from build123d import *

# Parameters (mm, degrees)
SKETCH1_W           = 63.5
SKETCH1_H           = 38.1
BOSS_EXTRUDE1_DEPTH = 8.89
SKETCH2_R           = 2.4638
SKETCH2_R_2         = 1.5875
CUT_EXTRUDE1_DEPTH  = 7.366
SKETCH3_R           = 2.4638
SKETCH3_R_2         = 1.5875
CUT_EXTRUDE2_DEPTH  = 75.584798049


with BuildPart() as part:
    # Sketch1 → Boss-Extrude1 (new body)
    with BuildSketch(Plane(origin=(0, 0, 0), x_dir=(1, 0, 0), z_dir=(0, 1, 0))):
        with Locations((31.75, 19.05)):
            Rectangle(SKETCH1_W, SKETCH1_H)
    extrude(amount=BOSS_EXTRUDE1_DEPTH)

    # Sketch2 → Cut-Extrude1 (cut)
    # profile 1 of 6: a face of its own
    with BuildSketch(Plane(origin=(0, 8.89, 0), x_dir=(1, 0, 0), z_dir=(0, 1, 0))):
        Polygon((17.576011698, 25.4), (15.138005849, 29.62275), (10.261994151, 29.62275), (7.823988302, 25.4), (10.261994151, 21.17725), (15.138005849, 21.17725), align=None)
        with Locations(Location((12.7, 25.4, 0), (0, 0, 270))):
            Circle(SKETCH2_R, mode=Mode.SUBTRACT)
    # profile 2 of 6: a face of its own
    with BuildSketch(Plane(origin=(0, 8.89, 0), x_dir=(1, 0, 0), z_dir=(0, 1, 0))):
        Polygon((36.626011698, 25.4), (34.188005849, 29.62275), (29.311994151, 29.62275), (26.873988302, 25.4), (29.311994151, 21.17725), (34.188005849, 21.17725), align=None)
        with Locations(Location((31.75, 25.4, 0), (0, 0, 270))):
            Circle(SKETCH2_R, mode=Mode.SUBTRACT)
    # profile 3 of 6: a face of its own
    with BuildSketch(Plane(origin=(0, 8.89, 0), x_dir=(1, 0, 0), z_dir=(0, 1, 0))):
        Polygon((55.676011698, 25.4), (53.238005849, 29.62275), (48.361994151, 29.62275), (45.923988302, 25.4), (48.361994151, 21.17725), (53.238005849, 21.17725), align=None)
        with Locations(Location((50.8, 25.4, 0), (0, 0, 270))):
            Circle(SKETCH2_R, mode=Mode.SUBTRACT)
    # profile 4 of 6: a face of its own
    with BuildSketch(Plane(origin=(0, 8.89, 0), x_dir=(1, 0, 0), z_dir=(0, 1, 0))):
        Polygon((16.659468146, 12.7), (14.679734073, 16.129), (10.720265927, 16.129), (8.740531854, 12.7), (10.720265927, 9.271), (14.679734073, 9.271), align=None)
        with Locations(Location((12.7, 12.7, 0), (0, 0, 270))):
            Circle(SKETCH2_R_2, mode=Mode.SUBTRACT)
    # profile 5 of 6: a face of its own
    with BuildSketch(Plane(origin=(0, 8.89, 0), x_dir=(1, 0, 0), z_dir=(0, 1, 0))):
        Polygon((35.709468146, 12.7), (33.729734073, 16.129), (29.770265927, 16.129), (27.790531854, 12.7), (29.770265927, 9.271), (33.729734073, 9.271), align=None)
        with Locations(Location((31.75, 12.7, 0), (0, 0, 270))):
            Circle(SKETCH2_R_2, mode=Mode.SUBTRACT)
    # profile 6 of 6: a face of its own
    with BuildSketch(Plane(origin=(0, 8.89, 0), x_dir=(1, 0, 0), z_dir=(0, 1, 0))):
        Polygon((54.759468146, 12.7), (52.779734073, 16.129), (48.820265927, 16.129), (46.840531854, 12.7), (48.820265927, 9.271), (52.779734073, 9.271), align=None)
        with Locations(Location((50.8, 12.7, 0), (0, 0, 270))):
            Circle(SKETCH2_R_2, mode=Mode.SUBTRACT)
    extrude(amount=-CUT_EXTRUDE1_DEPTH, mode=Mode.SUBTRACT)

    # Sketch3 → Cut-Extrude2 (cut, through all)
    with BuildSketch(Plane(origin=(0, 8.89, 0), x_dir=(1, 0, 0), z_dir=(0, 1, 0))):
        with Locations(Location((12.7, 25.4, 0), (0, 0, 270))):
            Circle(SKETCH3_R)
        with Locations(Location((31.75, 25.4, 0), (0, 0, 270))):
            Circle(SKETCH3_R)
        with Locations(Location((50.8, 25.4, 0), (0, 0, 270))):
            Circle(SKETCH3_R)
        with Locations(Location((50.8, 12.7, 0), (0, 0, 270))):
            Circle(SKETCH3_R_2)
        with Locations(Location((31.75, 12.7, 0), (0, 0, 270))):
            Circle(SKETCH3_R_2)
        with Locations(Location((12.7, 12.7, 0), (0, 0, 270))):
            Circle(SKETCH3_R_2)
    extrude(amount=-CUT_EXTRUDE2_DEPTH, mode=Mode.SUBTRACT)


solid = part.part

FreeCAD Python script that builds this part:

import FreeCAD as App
import Part
import Sketcher

V = App.Vector
Q = App.Units.Quantity

doc = App.newDocument("Part")
body = doc.addObject("PartDesign::Body", "Body")

sketch1 = body.newObject("Sketcher::SketchObject", "Sketch")
sketch1.AttachmentSupport = (doc.getObject("XZ_Plane"), [""])
sketch1.MapMode = "FlatFace"
sketch1.addGeometry(Part.LineSegment(V(0, -38, 0), V(0, 0, 0)), False)
sketch1.addGeometry(Part.LineSegment(V(0, 0, 0), V(64, 0, 0)), False)
sketch1.addGeometry(Part.LineSegment(V(64, 0, 0), V(64, -38, 0)), False)
sketch1.addGeometry(Part.LineSegment(V(64, -38, 0), V(0, -38, 0)), False)
sketch1.addConstraint(Sketcher.Constraint("Coincident", 0, 2, 1, 1))
sketch1.addConstraint(Sketcher.Constraint("Coincident", 1, 2, 2, 1))
sketch1.addConstraint(Sketcher.Constraint("Coincident", 2, 2, 3, 1))
sketch1.addConstraint(Sketcher.Constraint("Coincident", 3, 2, 0, 1))
sketch1.addConstraint(Sketcher.Constraint("Vertical", 0))
sketch1.addConstraint(Sketcher.Constraint("Horizontal", 1))
sketch1.addConstraint(Sketcher.Constraint("Vertical", 2))
sketch1.addConstraint(Sketcher.Constraint("Horizontal", 3))
sketch1.addConstraint(Sketcher.Constraint("Coincident", 0, 2, -1, 1))
sketch1.addConstraint(Sketcher.Constraint("DistanceX", 1, 1, 1, 2, Q("2.5 in")))
sketch1.addConstraint(Sketcher.Constraint("DistanceY", 0, 1, 0, 2, Q("1.5 in")))
pad1 = body.newObject("PartDesign::Pad", "Pad")
pad1.Profile = sketch1
pad1.Length = Q("0.35 in")
pad1.Reversed = True

sketch2 = body.newObject("Sketcher::SketchObject", "Sketch001")
sketch2.AttachmentSupport = (doc.getObject("XZ_Plane"), [""])
sketch2.MapMode = "FlatFace"
sketch2.AttachmentOffset = App.Placement(V(0, 0, -0.35 * 25.4), App.Rotation())
sketch2.addGeometry(Part.LineSegment(V(17.6, -25.4, 0), V(15.1, -29.6, 0)), False)
sketch2.addGeometry(Part.LineSegment(V(15.1, -29.6, 0), V(10.3, -29.6, 0)), False)
sketch2.addGeometry(Part.LineSegment(V(10.3, -29.6, 0), V(7.8, -25.4, 0)), False)
sketch2.addGeometry(Part.LineSegment(V(7.8, -25.4, 0), V(10.3, -21.2, 0)), False)
sketch2.addGeometry(Part.LineSegment(V(10.3, -21.2, 0), V(15.1, -21.2, 0)), False)
sketch2.addGeometry(Part.LineSegment(V(15.1, -21.2, 0), V(17.6, -25.4, 0)), False)
sketch2.addGeometry(Part.Circle(V(12.7, -25.4, 0), V(0, 0, 1), 2.5), False)
sketch2.addGeometry(Part.LineSegment(V(36.6, -25.4, 0), V(34.2, -29.6, 0)), False)
sketch2.addGeometry(Part.LineSegment(V(34.2, -29.6, 0), V(29.3, -29.6, 0)), False)
sketch2.addGeometry(Part.LineSegment(V(29.3, -29.6, 0), V(26.9, -25.4, 0)), False)
sketch2.addGeometry(Part.LineSegment(V(26.9, -25.4, 0), V(29.3, -21.2, 0)), False)
sketch2.addGeometry(Part.LineSegment(V(29.3, -21.2, 0), V(34.2, -21.2, 0)), False)
sketch2.addGeometry(Part.LineSegment(V(34.2, -21.2, 0), V(36.6, -25.4, 0)), False)
sketch2.addGeometry(Part.Circle(V(31.8, -25.4, 0), V(0, 0, 1), 2.5), False)
sketch2.addGeometry(Part.LineSegment(V(55.7, -25.4, 0), V(53.2, -29.6, 0)), False)
sketch2.addGeometry(Part.LineSegment(V(53.2, -29.6, 0), V(48.4, -29.6, 0)), False)
sketch2.addGeometry(Part.LineSegment(V(48.4, -29.6, 0), V(45.9, -25.4, 0)), False)
sketch2.addGeometry(Part.LineSegment(V(45.9, -25.4, 0), V(48.4, -21.2, 0)), False)
sketch2.addGeometry(Part.LineSegment(V(48.4, -21.2, 0), V(53.2, -21.2, 0)), False)
sketch2.addGeometry(Part.LineSegment(V(53.2, -21.2, 0), V(55.7, -25.4, 0)), False)
sketch2.addGeometry(Part.Circle(V(50.8, -25.4, 0), V(0, 0, 1), 2.5), False)
sketch2.addGeometry(Part.LineSegment(V(16.7, -12.7, 0), V(14.7, -16.1, 0)), False)
sketch2.addGeometry(Part.LineSegment(V(14.7, -16.1, 0), V(10.7, -16.1, 0)), False)
sketch2.addGeometry(Part.LineSegment(V(10.7, -16.1, 0), V(8.7, -12.7, 0)), False)
sketch2.addGeometry(Part.LineSegment(V(8.7, -12.7, 0), V(10.7, -9.3, 0)), False)
sketch2.addGeometry(Part.LineSegment(V(10.7, -9.3, 0), V(14.7, -9.3, 0)), False)
sketch2.addGeometry(Part.LineSegment(V(14.7, -9.3, 0), V(16.7, -12.7, 0)), False)
sketch2.addGeometry(Part.Circle(V(12.7, -12.7, 0), V(0, 0, 1), 1.6), False)
sketch2.addGeometry(Part.LineSegment(V(35.7, -12.7, 0), V(33.7, -16.1, 0)), False)
sketch2.addGeometry(Part.LineSegment(V(33.7, -16.1, 0), V(29.8, -16.1, 0)), False)
sketch2.addGeometry(Part.LineSegment(V(29.8, -16.1, 0), V(27.8, -12.7, 0)), False)
sketch2.addGeometry(Part.LineSegment(V(27.8, -12.7, 0), V(29.8, -9.3, 0)), False)
sketch2.addGeometry(Part.LineSegment(V(29.8, -9.3, 0), V(33.7, -9.3, 0)), False)
sketch2.addGeometry(Part.LineSegment(V(33.7, -9.3, 0), V(35.7, -12.7, 0)), False)
sketch2.addGeometry(Part.Circle(V(31.8, -12.7, 0), V(0, 0, 1), 1.6), False)
sketch2.addGeometry(Part.LineSegment(V(54.8, -12.7, 0), V(52.8, -16.1, 0)), False)
sketch2.addGeometry(Part.LineSegment(V(52.8, -16.1, 0), V(48.8, -16.1, 0)), False)
sketch2.addGeometry(Part.LineSegment(V(48.8, -16.1, 0), V(46.8, -12.7, 0)), False)
sketch2.addGeometry(Part.LineSegment(V(46.8, -12.7, 0), V(48.8, -9.3, 0)), False)
sketch2.addGeometry(Part.LineSegment(V(48.8, -9.3, 0), V(52.8, -9.3, 0)), False)
sketch2.addGeometry(Part.LineSegment(V(52.8, -9.3, 0), V(54.8, -12.7, 0)), False)
sketch2.addGeometry(Part.Circle(V(50.8, -12.7, 0), V(0, 0, 1), 1.6), False)
sketch2.addConstraint(Sketcher.Constraint("Coincident", 0, 2, 1, 1))
sketch2.addConstraint(Sketcher.Constraint("Coincident", 1, 2, 2, 1))
sketch2.addConstraint(Sketcher.Constraint("Coincident", 2, 2, 3, 1))
sketch2.addConstraint(Sketcher.Constraint("Coincident", 3, 2, 4, 1))
sketch2.addConstraint(Sketcher.Constraint("Coincident", 4, 2, 5, 1))
sketch2.addConstraint(Sketcher.Constraint("Coincident", 5, 2, 0, 1))
sketch2.addConstraint(Sketcher.Constraint("Coincident", 7, 2, 8, 1))
sketch2.addConstraint(Sketcher.Constraint("Coincident", 8, 2, 9, 1))
sketch2.addConstraint(Sketcher.Constraint("Coincident", 9, 2, 10, 1))
sketch2.addConstraint(Sketcher.Constraint("Coincident", 10, 2, 11, 1))
sketch2.addConstraint(Sketcher.Constraint("Coincident", 11, 2, 12, 1))
sketch2.addConstraint(Sketcher.Constraint("Coincident", 12, 2, 7, 1))
sketch2.addConstraint(Sketcher.Constraint("Coincident", 14, 2, 15, 1))
sketch2.addConstraint(Sketcher.Constraint("Coincident", 15, 2, 16, 1))
sketch2.addConstraint(Sketcher.Constraint("Coincident", 16, 2, 17, 1))
sketch2.addConstraint(Sketcher.Constraint("Coincident", 17, 2, 18, 1))
sketch2.addConstraint(Sketcher.Constraint("Coincident", 18, 2, 19, 1))
sketch2.addConstraint(Sketcher.Constraint("Coincident", 19, 2, 14, 1))
sketch2.addConstraint(Sketcher.Constraint("Coincident", 21, 2, 22, 1))
sketch2.addConstraint(Sketcher.Constraint("Coincident", 22, 2, 23, 1))
sketch2.addConstraint(Sketcher.Constraint("Coincident", 23, 2, 24, 1))
sketch2.addConstraint(Sketcher.Constraint("Coincident", 24, 2, 25, 1))
sketch2.addConstraint(Sketcher.Constraint("Coincident", 25, 2, 26, 1))
sketch2.addConstraint(Sketcher.Constraint("Coincident", 26, 2, 21, 1))
sketch2.addConstraint(Sketcher.Constraint("Coincident", 28, 2, 29, 1))
sketch2.addConstraint(Sketcher.Constraint("Coincident", 29, 2, 30, 1))
sketch2.addConstraint(Sketcher.Constraint("Coincident", 30, 2, 31, 1))
sketch2.addConstraint(Sketcher.Constraint("Coincident", 31, 2, 32, 1))
sketch2.addConstraint(Sketcher.Constraint("Coincident", 32, 2, 33, 1))
sketch2.addConstraint(Sketcher.Constraint("Coincident", 33, 2, 28, 1))
sketch2.addConstraint(Sketcher.Constraint("Coincident", 35, 2, 36, 1))
sketch2.addConstraint(Sketcher.Constraint("Coincident", 36, 2, 37, 1))
sketch2.addConstraint(Sketcher.Constraint("Coincident", 37, 2, 38, 1))
sketch2.addConstraint(Sketcher.Constraint("Coincident", 38, 2, 39, 1))
sketch2.addConstraint(Sketcher.Constraint("Coincident", 39, 2, 40, 1))
sketch2.addConstraint(Sketcher.Constraint("Coincident", 40, 2, 35, 1))
sketch2.addConstraint(Sketcher.Constraint("Horizontal", 1))
sketch2.addConstraint(Sketcher.Constraint("Horizontal", 4))
sketch2.addConstraint(Sketcher.Constraint("Horizontal", 8))
sketch2.addConstraint(Sketcher.Constraint("Horizontal", 11))
sketch2.addConstraint(Sketcher.Constraint("Horizontal", 15))
sketch2.addConstraint(Sketcher.Constraint("Horizontal", 18))
sketch2.addConstraint(Sketcher.Constraint("Horizontal", 22))
sketch2.addConstraint(Sketcher.Constraint("Horizontal", 25))
sketch2.addConstraint(Sketcher.Constraint("Horizontal", 29))
sketch2.addConstraint(Sketcher.Constraint("Horizontal", 32))
sketch2.addConstraint(Sketcher.Constraint("Horizontal", 36))
sketch2.addConstraint(Sketcher.Constraint("Horizontal", 39))
sketch2.addConstraint(Sketcher.Constraint("Equal", 6, 13))
sketch2.addConstraint(Sketcher.Constraint("Equal", 13, 20))
sketch2.addConstraint(Sketcher.Constraint("Equal", 27, 34))
sketch2.addConstraint(Sketcher.Constraint("Equal", 34, 41))
sketch2.addConstraint(Sketcher.Constraint("Parallel", 0, 3))
sketch2.addConstraint(Sketcher.Constraint("Parallel", 2, 5))
sketch2.addConstraint(Sketcher.Constraint("Parallel", 3, 7))
sketch2.addConstraint(Sketcher.Constraint("Parallel", 5, 9))
sketch2.addConstraint(Sketcher.Constraint("Parallel", 7, 10))
sketch2.addConstraint(Sketcher.Constraint("Parallel", 9, 12))
sketch2.addConstraint(Sketcher.Constraint("Parallel", 10, 14))
sketch2.addConstraint(Sketcher.Constraint("Parallel", 12, 16))
sketch2.addConstraint(Sketcher.Constraint("Parallel", 14, 17))
sketch2.addConstraint(Sketcher.Constraint("Parallel", 16, 19))
sketch2.addConstraint(Sketcher.Constraint("Parallel", 17, 21))
sketch2.addConstraint(Sketcher.Constraint("Parallel", 19, 23))
sketch2.addConstraint(Sketcher.Constraint("Parallel", 21, 24))
sketch2.addConstraint(Sketcher.Constraint("Parallel", 23, 26))
sketch2.addConstraint(Sketcher.Constraint("Parallel", 24, 28))
sketch2.addConstraint(Sketcher.Constraint("Parallel", 26, 30))
sketch2.addConstraint(Sketcher.Constraint("Parallel", 28, 31))
sketch2.addConstraint(Sketcher.Constraint("Parallel", 30, 33))
sketch2.addConstraint(Sketcher.Constraint("Parallel", 31, 35))
sketch2.addConstraint(Sketcher.Constraint("Parallel", 33, 37))
sketch2.addConstraint(Sketcher.Constraint("Parallel", 35, 38))
sketch2.addConstraint(Sketcher.Constraint("Parallel", 37, 40))
sketch2.addConstraint(Sketcher.Constraint("Horizontal", 6, 3, 13, 3))
sketch2.addConstraint(Sketcher.Constraint("Horizontal", 13, 3, 20, 3))
sketch2.addConstraint(Sketcher.Constraint("Horizontal", 27, 3, 34, 3))
sketch2.addConstraint(Sketcher.Constraint("Horizontal", 34, 3, 41, 3))
sketch2.addConstraint(Sketcher.Constraint("Horizontal", 20, 3, 2, 2))
sketch2.addConstraint(Sketcher.Constraint("Horizontal", 2, 2, 5, 2))
sketch2.addConstraint(Sketcher.Constraint("Horizontal", 1, 2, 7, 2))
sketch2.addConstraint(Sketcher.Constraint("Horizontal", 5, 2, 9, 2))
sketch2.addConstraint(Sketcher.Constraint("Horizontal", 4, 2, 10, 2))
sketch2.addConstraint(Sketcher.Constraint("Horizontal", 9, 2, 12, 2))
sketch2.addConstraint(Sketcher.Constraint("Horizontal", 8, 2, 14, 2))
sketch2.addConstraint(Sketcher.Constraint("Horizontal", 12, 2, 16, 2))
sketch2.addConstraint(Sketcher.Constraint("Horizontal", 11, 2, 17, 2))
sketch2.addConstraint(Sketcher.Constraint("Horizontal", 16, 2, 19, 2))
sketch2.addConstraint(Sketcher.Constraint("Horizontal", 41, 3, 23, 2))
sketch2.addConstraint(Sketcher.Constraint("Horizontal", 23, 2, 26, 2))
sketch2.addConstraint(Sketcher.Constraint("Horizontal", 22, 2, 28, 2))
sketch2.addConstraint(Sketcher.Constraint("Horizontal", 26, 2, 30, 2))
sketch2.addConstraint(Sketcher.Constraint("Horizontal", 25, 2, 31, 2))
sketch2.addConstraint(Sketcher.Constraint("Horizontal", 30, 2, 33, 2))
sketch2.addConstraint(Sketcher.Constraint("Horizontal", 29, 2, 35, 2))
sketch2.addConstraint(Sketcher.Constraint("Horizontal", 33, 2, 37, 2))
sketch2.addConstraint(Sketcher.Constraint("Horizontal", 32, 2, 38, 2))
sketch2.addConstraint(Sketcher.Constraint("Horizontal", 37, 2, 40, 2))
sketch2.addConstraint(Sketcher.Constraint("Vertical", 6, 3, 27, 3))
sketch2.addConstraint(Sketcher.Constraint("Vertical", 13, 3, 34, 3))
sketch2.addConstraint(Sketcher.Constraint("Vertical", 20, 3, 41, 3))
sketch2.addConstraint(Sketcher.Constraint("Vertical", 1, 2, 3, 2))
sketch2.addConstraint(Sketcher.Constraint("Vertical", 0, 2, 4, 2))
sketch2.addConstraint(Sketcher.Constraint("Vertical", 22, 2, 24, 2))
sketch2.addConstraint(Sketcher.Constraint("Equal", 4, 8))
sketch2.addConstraint(Sketcher.Constraint("Equal", 11, 15))
sketch2.addConstraint(Sketcher.Constraint("Equal", 25, 29))
sketch2.addConstraint(Sketcher.Constraint("Equal", 32, 36))
sketch2.addConstraint(Sketcher.Constraint("Diameter", 6, Q("0.194 in")))
sketch2.addConstraint(Sketcher.Constraint("Diameter", 27, Q("0.125 in")))
sketch2.addConstraint(Sketcher.Constraint("DistanceY", 6, 3, -1, 1, Q("1 in")))
sketch2.addConstraint(Sketcher.Constraint("DistanceX", -1, 1, 20, 3, Q("2 in")))
sketch2.addConstraint(Sketcher.Constraint("Angle", 0, Q("-120 deg")))
sketch2.addConstraint(Sketcher.Constraint("DistanceX", -1, 1, 6, 3, Q("0.5 in")))
sketch2.addConstraint(Sketcher.Constraint("DistanceY", 27, 3, -1, 1, Q("0.5 in")))
sketch2.addConstraint(Sketcher.Constraint("DistanceX", -1, 1, 13, 3, Q("1.25 in")))
sketch2.addConstraint(Sketcher.Constraint("DistanceX", 0, 2, 7, 2, Q("0.75 in")))
sketch2.addConstraint(Sketcher.Constraint("DistanceX", 7, 2, 14, 2, Q("0.75 in")))
sketch2.addConstraint(Sketcher.Constraint("DistanceY", 22, 2, 24, 2, Q("0.27 in")))
sketch2.addConstraint(Sketcher.Constraint("DistanceY", 3, 2, 24, 2, Q("0.46875 in")))
sketch2.addConstraint(Sketcher.Constraint("DistanceX", 23, 2, 3, 2, Q("0.0599001 in")))
sketch2.addConstraint(Sketcher.Constraint("DistanceX", 30, 2, 10, 2, Q("0.0599001 in")))
sketch2.addConstraint(Sketcher.Constraint("DistanceX", 37, 2, 17, 2, Q("0.0599001 in")))
sketch2.addConstraint(Sketcher.Constraint("DistanceX", 1, 2, 1, 1, 4.876012))
sketch2.addConstraint(Sketcher.Constraint("DistanceX", 22, 2, 22, 1, 3.959468))
sketch2.addConstraint(Sketcher.Constraint("DistanceX", -1, 1, 2, 2, 7.823988))
pocket1 = body.newObject("PartDesign::Pocket", "Pocket")
pocket1.Profile = sketch2
pocket1.Length = Q("0.29 in")
pocket1.Reversed = True

sketch3 = body.newObject("Sketcher::SketchObject", "Sketch002")
sketch3.AttachmentSupport = (doc.getObject("XZ_Plane"), [""])
sketch3.MapMode = "FlatFace"
sketch3.AttachmentOffset = App.Placement(V(0, 0, -0.35 * 25.4), App.Rotation())
sketch3.addGeometry(Part.Circle(V(12.7, -25.4, 0), V(0, 0, 1), 2.5), False)
sketch3.addGeometry(Part.Circle(V(31.8, -25.4, 0), V(0, 0, 1), 2.5), False)
sketch3.addGeometry(Part.Circle(V(50.8, -25.4, 0), V(0, 0, 1), 2.5), False)
sketch3.addGeometry(Part.Circle(V(50.8, -12.7, 0), V(0, 0, 1), 1.6), False)
sketch3.addGeometry(Part.Circle(V(31.8, -12.7, 0), V(0, 0, 1), 1.6), False)
sketch3.addGeometry(Part.Circle(V(12.7, -12.7, 0), V(0, 0, 1), 1.6), False)
sketch3.addConstraint(Sketcher.Constraint("Equal", 0, 1))
sketch3.addConstraint(Sketcher.Constraint("Equal", 1, 2))
sketch3.addConstraint(Sketcher.Constraint("Equal", 3, 4))
sketch3.addConstraint(Sketcher.Constraint("Equal", 4, 5))
sketch3.addConstraint(Sketcher.Constraint("Horizontal", 0, 3, 1, 3))
sketch3.addConstraint(Sketcher.Constraint("Horizontal", 1, 3, 2, 3))
sketch3.addConstraint(Sketcher.Constraint("Horizontal", 3, 3, 4, 3))
sketch3.addConstraint(Sketcher.Constraint("Horizontal", 4, 3, 5, 3))
sketch3.addConstraint(Sketcher.Constraint("Vertical", 2, 3, 3, 3))
sketch3.addConstraint(Sketcher.Constraint("Vertical", 1, 3, 4, 3))
sketch3.addConstraint(Sketcher.Constraint("Vertical", 0, 3, 5, 3))
sketch3.addConstraint(Sketcher.Constraint("Diameter", 0, Q("0.194 in")))
sketch3.addConstraint(Sketcher.Constraint("Diameter", 3, Q("0.125 in")))
sketch3.addConstraint(Sketcher.Constraint("DistanceY", 0, 3, -1, 1, Q("1 in")))
sketch3.addConstraint(Sketcher.Constraint("DistanceX", -1, 1, 2, 3, Q("2 in")))
sketch3.addConstraint(Sketcher.Constraint("DistanceX", -1, 1, 0, 3, Q("0.5 in")))
sketch3.addConstraint(Sketcher.Constraint("DistanceY", 3, 3, -1, 1, Q("0.5 in")))
sketch3.addConstraint(Sketcher.Constraint("DistanceX", -1, 1, 1, 3, Q("1.25 in")))
pocket2 = body.newObject("PartDesign::Pocket", "Pocket001")
pocket2.Profile = sketch3
pocket2.Type = "ThroughAll"
pocket2.Reversed = True

doc.recompute()
